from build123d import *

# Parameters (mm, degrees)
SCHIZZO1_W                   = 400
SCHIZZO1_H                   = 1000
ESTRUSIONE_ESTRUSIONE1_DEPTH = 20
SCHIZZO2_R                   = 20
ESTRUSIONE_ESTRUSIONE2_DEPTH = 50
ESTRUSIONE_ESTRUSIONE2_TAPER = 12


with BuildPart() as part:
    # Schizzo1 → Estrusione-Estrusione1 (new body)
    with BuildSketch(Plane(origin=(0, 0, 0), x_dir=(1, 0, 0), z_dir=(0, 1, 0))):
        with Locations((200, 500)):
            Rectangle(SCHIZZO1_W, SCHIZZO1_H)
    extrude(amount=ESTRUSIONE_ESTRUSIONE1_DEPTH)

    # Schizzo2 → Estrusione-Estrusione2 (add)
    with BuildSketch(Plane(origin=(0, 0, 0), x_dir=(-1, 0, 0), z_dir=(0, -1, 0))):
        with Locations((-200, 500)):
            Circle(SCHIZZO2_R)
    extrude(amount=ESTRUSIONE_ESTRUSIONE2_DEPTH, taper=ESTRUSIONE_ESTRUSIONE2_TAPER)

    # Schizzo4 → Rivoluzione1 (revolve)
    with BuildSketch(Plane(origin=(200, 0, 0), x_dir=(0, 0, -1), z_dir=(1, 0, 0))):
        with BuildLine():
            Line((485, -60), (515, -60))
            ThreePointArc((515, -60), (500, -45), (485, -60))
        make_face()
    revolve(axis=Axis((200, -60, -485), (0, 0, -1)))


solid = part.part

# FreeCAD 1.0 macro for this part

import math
import FreeCAD as App
import Part
import Sketcher
from FreeCAD import Vector
Q = App.Units.Quantity

doc = App.newDocument("Part")
body = doc.addObject("PartDesign::Body", "Body")

# Sketch on XZ plane
sketch1 = body.newObject("Sketcher::SketchObject", "Sketch")
sketch1.AttachmentSupport = (doc.getObject("XZ_Plane"), [""])
sketch1.MapMode = "FlatFace"
sketch1.addGeometry([
    Part.LineSegment(Vector(0, -1000, 0), Vector(0, 0, 0)),
    Part.LineSegment(Vector(0, 0, 0), Vector(400, 0, 0)),
    Part.LineSegment(Vector(400, 0, 0), Vector(400, -1000, 0)),
    Part.LineSegment(Vector(400, -1000, 0), Vector(0, -1000, 0)),
], False)
sketch1.addConstraint([
    Sketcher.Constraint("Coincident", 0, 2, 1, 1),
    Sketcher.Constraint("Coincident", 1, 2, 2, 1),
    Sketcher.Constraint("Coincident", 2, 2, 3, 1),
    Sketcher.Constraint("Coincident", 3, 2, 0, 1),
    Sketcher.Constraint("Vertical", 0),
    Sketcher.Constraint("Horizontal", 1),
    Sketcher.Constraint("Vertical", 2),
    Sketcher.Constraint("Horizontal", 3),
    Sketcher.Constraint("Coincident", 0, 2, -1, 1),
    Sketcher.Constraint("DistanceX", 1, 1, 1, 2, Q("400 mm")),
    Sketcher.Constraint("DistanceY", 0, 1, 0, 2, Q("1000 mm")),
])
pad1 = body.newObject("PartDesign::Pad", "Pad")
pad1.Profile = sketch1
pad1.Length = 20
pad1.Reversed = True

# Sketch on XZ plane
sketch2 = body.newObject("Sketcher::SketchObject", "Sketch001")
sketch2.AttachmentSupport = (doc.getObject("XZ_Plane"), [""])
sketch2.MapMode = "FlatFace"
sketch2.addGeometry(Part.Circle(Vector(200, -500, 0), Vector(0, 0, 1), 20), False)
sketch2.addConstraint([
    Sketcher.Constraint("Diameter", 0, Q("40 mm")),
    Sketcher.Constraint("DistanceX", -1, 1, 0, 3, Q("200 mm")),
    Sketcher.Constraint("DistanceY", 0, 3, -1, 1, Q("500 mm")),
])
pad2 = body.newObject("PartDesign::Pad", "Pad001")
pad2.Profile = sketch2
pad2.Length = 50
pad2.TaperAngle = -12

# Sketch on YZ plane
sketch3 = body.newObject("Sketcher::SketchObject", "Sketch002")
sketch3.AttachmentSupport = (doc.getObject("YZ_Plane"), [""])
sketch3.MapMode = "FlatFace"
sketch3.AttachmentOffset = App.Placement(Vector(0, 0, 200), App.Rotation())
sketch3.addGeometry([
    Part.LineSegment(Vector(-60, -485, 0), Vector(-60, -515, 0)),
    Part.ArcOfCircle(Part.Circle(Vector(-60, -500, 0), Vector(0, 0, 1), 15), math.radians(-90), math.radians(90)),
], False)
sketch3.addGeometry(Part.LineSegment(Vector(-60, -485, 0), Vector(-60, -515, 0)), True)  # axis
sketch3.addConstraint([
    Sketcher.Constraint("Coincident", 0, 1, 1, 2),
    Sketcher.Constraint("Coincident", 1, 1, 0, 2),
    Sketcher.Constraint("Vertical", 0),
    Sketcher.Constraint("Vertical", 2),
    Sketcher.Constraint("Coincident", 2, 1, 0, 1),
    Sketcher.Constraint("Vertical", 1, 3, 0, 1),
    Sketcher.Constraint("Equal", 0, 2),
    Sketcher.Constraint("Radius", 1, Q("15 mm")),
    Sketcher.Constraint("DistanceX", 1, 3, -1, 1, Q("60 mm")),
    Sketcher.Constraint("DistanceY", 1, 3, -1, 1, Q("500 mm")),
])
revolution = body.newObject("PartDesign::Revolution", "Revolution")
revolution.Profile = sketch3
revolution.ReferenceAxis = (sketch3, ["Axis0"])
revolution.Angle = 360

doc.recompute()
